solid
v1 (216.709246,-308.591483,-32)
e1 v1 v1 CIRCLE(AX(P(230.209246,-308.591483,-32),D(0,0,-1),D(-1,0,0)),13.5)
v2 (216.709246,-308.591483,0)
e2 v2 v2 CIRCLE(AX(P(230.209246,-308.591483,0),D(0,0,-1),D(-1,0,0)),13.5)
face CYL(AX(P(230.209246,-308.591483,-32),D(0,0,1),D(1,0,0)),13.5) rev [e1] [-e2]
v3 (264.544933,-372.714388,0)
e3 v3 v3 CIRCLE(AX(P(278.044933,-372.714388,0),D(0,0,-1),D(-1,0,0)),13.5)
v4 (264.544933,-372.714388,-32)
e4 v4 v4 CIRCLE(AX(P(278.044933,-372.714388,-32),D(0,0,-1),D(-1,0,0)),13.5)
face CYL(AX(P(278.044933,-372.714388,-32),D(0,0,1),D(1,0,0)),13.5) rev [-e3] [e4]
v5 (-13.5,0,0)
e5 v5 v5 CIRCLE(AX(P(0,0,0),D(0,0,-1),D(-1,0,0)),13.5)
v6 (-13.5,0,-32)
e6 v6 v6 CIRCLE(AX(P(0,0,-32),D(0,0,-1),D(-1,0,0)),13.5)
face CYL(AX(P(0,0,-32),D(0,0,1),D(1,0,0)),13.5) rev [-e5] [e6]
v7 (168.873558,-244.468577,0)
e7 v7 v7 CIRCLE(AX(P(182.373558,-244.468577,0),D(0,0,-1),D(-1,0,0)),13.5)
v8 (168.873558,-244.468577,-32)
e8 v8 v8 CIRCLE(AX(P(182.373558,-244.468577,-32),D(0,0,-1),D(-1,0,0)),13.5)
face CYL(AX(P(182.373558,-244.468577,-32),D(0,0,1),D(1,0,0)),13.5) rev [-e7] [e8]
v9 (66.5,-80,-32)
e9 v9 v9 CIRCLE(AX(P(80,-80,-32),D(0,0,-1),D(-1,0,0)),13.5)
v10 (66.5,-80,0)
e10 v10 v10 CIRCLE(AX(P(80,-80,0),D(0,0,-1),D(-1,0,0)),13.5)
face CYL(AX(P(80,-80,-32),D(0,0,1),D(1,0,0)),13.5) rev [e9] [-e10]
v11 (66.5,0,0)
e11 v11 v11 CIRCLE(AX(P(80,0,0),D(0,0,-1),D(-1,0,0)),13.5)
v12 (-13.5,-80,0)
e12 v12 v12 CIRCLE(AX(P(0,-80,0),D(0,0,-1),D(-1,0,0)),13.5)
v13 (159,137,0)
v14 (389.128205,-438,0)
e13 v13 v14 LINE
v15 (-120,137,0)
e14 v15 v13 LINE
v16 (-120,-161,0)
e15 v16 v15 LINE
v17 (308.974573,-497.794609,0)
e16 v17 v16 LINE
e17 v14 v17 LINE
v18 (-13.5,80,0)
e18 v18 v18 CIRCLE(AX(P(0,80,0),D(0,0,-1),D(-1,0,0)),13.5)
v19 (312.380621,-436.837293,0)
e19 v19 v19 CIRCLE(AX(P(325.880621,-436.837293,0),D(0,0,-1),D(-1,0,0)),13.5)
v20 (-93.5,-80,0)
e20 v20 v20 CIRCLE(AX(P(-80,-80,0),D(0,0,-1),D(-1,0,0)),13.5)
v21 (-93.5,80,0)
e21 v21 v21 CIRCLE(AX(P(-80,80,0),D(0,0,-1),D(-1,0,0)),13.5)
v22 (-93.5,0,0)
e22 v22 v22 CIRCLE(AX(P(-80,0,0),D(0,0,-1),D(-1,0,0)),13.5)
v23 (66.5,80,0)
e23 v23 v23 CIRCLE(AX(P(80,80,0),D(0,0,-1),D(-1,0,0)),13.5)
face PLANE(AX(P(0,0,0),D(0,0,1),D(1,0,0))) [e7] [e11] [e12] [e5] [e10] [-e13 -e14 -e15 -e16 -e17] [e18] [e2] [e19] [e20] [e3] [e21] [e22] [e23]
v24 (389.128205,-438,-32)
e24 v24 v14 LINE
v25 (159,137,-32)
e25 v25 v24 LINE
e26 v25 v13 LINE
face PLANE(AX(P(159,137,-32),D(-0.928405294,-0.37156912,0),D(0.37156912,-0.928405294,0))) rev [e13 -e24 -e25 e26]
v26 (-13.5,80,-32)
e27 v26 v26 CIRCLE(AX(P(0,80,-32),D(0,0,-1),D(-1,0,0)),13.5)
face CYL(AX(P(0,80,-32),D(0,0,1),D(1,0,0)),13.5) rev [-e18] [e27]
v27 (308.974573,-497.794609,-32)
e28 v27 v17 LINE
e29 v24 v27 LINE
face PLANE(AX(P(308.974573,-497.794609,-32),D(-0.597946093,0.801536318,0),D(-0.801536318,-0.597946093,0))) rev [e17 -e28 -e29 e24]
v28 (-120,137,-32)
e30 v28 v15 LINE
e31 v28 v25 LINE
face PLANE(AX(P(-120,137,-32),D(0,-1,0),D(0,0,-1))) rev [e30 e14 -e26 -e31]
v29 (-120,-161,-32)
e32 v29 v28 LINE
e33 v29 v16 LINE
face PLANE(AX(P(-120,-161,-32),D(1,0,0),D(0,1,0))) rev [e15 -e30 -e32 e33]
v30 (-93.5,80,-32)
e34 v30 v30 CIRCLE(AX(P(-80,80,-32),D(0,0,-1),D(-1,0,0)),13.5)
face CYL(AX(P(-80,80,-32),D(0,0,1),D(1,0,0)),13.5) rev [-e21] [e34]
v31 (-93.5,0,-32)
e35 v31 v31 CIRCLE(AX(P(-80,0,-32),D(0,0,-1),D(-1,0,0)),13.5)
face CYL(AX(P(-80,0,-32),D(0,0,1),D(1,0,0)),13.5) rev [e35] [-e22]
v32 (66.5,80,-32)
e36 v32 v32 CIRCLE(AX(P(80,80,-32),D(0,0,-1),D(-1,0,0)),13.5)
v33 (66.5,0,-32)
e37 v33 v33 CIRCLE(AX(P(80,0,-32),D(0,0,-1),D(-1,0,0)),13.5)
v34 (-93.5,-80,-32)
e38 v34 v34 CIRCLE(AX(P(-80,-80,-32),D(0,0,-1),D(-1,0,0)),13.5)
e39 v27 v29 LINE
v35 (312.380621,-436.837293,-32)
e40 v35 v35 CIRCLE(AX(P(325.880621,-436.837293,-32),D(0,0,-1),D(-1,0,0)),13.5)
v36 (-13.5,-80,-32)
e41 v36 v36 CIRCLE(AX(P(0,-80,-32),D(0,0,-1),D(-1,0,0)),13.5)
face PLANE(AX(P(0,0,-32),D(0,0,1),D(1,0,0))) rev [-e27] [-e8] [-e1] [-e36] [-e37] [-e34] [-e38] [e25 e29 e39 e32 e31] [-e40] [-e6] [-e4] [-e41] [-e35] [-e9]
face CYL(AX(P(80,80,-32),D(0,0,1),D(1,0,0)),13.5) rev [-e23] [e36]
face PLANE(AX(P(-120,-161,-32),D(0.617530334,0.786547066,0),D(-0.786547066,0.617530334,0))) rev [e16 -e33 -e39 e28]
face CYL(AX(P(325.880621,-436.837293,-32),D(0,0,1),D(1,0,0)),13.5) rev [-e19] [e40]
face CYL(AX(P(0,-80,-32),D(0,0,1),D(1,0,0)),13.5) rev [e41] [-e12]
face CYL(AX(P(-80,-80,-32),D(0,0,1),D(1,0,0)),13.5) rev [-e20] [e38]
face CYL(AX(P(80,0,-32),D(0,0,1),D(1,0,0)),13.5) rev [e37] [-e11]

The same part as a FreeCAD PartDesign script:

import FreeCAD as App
import Part
import Sketcher

V = App.Vector


def add_polygon(sketch, points):
    """Adds a closed chain of lines whose ends are joined by coincident constraints."""
    first, n = sketch.GeometryCount, len(points)
    for a, b in zip(points, points[1:] + points[:1]):
        sketch.addGeometry(Part.LineSegment(App.Vector(*a, 0), App.Vector(*b, 0)), False)
    for i in range(n):
        sketch.addConstraint(Sketcher.Constraint("Coincident", first + i, 2, first + (i + 1) % n, 1))

doc = App.newDocument("Part")
body = doc.addObject("PartDesign::Body", "Body")

# Sketch on XY plane
sketch1 = body.newObject("Sketcher::SketchObject", "Sketch")
sketch1.AttachmentSupport = (doc.getObject("XY_Plane"), [""])
sketch1.MapMode = "FlatFace"
add_polygon(sketch1, [(-120, -161), (-120, 137), (159, 137), (389, -438), (309, -498)])  # lines 0-4
sketch1.addGeometry(Part.Circle(V(-80, 80, 0), V(0, 0, 1), 14), False)  # 5
sketch1.addGeometry(Part.Circle(V(0, 80, 0), V(0, 0, 1), 14), False)  # 6
sketch1.addGeometry(Part.Circle(V(-80, 0, 0), V(0, 0, 1), 14), False)  # 7
sketch1.addGeometry(Part.Circle(V(0, 0, 0), V(0, 0, 1), 14), False)  # 8
sketch1.addGeometry(Part.Circle(V(80, 80, 0), V(0, 0, 1), 14), False)  # 9
sketch1.addGeometry(Part.Circle(V(80, 0, 0), V(0, 0, 1), 14), False)  # 10
sketch1.addGeometry(Part.Circle(V(-80, -80, 0), V(0, 0, 1), 14), False)  # 11
sketch1.addGeometry(Part.Circle(V(0, -80, 0), V(0, 0, 1), 14), False)  # 12
sketch1.addGeometry(Part.Circle(V(80, -80, 0), V(0, 0, 1), 14), False)  # 13
sketch1.addGeometry(Part.Circle(V(182, -244, 0), V(0, 0, 1), 14), False)  # 14
sketch1.addGeometry(Part.Circle(V(230, -309, 0), V(0, 0, 1), 14), False)  # 15
sketch1.addGeometry(Part.Circle(V(278, -373, 0), V(0, 0, 1), 14), False)  # 16
sketch1.addGeometry(Part.Circle(V(326, -437, 0), V(0, 0, 1), 14), False)  # 17
sketch1.addConstraint(Sketcher.Constraint("Vertical", 0))
sketch1.addConstraint(Sketcher.Constraint("Horizontal", 1))
sketch1.addConstraint(Sketcher.Constraint("Coincident", 8, 3, -1, 1))
sketch1.addConstraint(Sketcher.Constraint("Equal", 5, 6))
sketch1.addConstraint(Sketcher.Constraint("Equal", 6, 7))
sketch1.addConstraint(Sketcher.Constraint("Equal", 7, 8))
sketch1.addConstraint(Sketcher.Constraint("Equal", 8, 9))
sketch1.addConstraint(Sketcher.Constraint("Equal", 9, 10))
sketch1.addConstraint(Sketcher.Constraint("Equal", 10, 11))
sketch1.addConstraint(Sketcher.Constraint("Equal", 11, 12))
sketch1.addConstraint(Sketcher.Constraint("Equal", 12, 13))
sketch1.addConstraint(Sketcher.Constraint("Equal", 13, 14))
sketch1.addConstraint(Sketcher.Constraint("Equal", 14, 15))
sketch1.addConstraint(Sketcher.Constraint("Equal", 15, 16))
sketch1.addConstraint(Sketcher.Constraint("Equal", 16, 17))
sketch1.addConstraint(Sketcher.Constraint("Symmetric", 7, 3, 10, 3, -1, 1))
sketch1.addConstraint(Sketcher.Constraint("Symmetric", 9, 3, 11, 3, -1, 1))
sketch1.addConstraint(Sketcher.Constraint("Symmetric", 6, 3, 12, 3, -1, 1))
sketch1.addConstraint(Sketcher.Constraint("Symmetric", 5, 3, 13, 3, -1, 1))
sketch1.addConstraint(Sketcher.Constraint("Symmetric", 5, 3, 9, 3, -2))
sketch1.addConstraint(Sketcher.Constraint("PointOnObject", 6, 3, -2))
sketch1.addConstraint(Sketcher.Constraint("PointOnObject", 7, 3, -1))
sketch1.addConstraint(Sketcher.Constraint("Horizontal", 5, 3, 6, 3))
sketch1.addConstraint(Sketcher.Constraint("Vertical", 5, 3, 7, 3))
sketch1.addConstraint(Sketcher.Constraint("Diameter", 5, 27.0))
sketch1.addConstraint(Sketcher.Constraint("DistanceX", 1, 1, 1, 2, 279.0))
sketch1.addConstraint(Sketcher.Constraint("DistanceY", 0, 1, 0, 2, 298.0))
sketch1.addConstraint(Sketcher.Constraint("Distance", 3, 100.0))
sketch1.addConstraint(Sketcher.Constraint("DistanceX", 5, 3, -1, 1, 80.0))
sketch1.addConstraint(Sketcher.Constraint("DistanceY", -1, 1, 5, 3, 80.0))
sketch1.addConstraint(Sketcher.Constraint("DistanceX", 0, 2, -1, 1, 120.0))
sketch1.addConstraint(Sketcher.Constraint("DistanceY", -1, 1, 0, 2, 137.0))
sketch1.addConstraint(Sketcher.Constraint("DistanceY", 2, 2, -1, 1, 438.0))
sketch1.addConstraint(Sketcher.Constraint("Distance", 2, 619.341578))
sketch1.addConstraint(Sketcher.Constraint("Distance", 4, 545.38958))
sketch1.addConstraint(Sketcher.Constraint("DistanceX", -1, 1, 14, 3, 182.373558))
sketch1.addConstraint(Sketcher.Constraint("DistanceX", -1, 1, 17, 3, 325.880621))
sketch1.addConstraint(Sketcher.Constraint("DistanceY", 16, 3, 14, 3, 128.245811))
sketch1.addConstraint(Sketcher.Constraint("DistanceY", 17, 3, 15, 3, 128.245811))
sketch1.addConstraint(Sketcher.Constraint("DistanceX", 16, 3, 2, 2, 111.083272))
sketch1.addConstraint(Sketcher.Constraint("DistanceX", 15, 3, 2, 2, 158.918959))
sketch1.addConstraint(Sketcher.Constraint("DistanceY", 3, 2, 16, 3, 125.080221))
sketch1.addConstraint(Sketcher.Constraint("DistanceY", 15, 3, -1, 1, 308.591483))
pad1 = body.newObject("PartDesign::Pad", "Pad")
pad1.Profile = sketch1
pad1.Length = 32
pad1.Reversed = True

doc.recompute()
